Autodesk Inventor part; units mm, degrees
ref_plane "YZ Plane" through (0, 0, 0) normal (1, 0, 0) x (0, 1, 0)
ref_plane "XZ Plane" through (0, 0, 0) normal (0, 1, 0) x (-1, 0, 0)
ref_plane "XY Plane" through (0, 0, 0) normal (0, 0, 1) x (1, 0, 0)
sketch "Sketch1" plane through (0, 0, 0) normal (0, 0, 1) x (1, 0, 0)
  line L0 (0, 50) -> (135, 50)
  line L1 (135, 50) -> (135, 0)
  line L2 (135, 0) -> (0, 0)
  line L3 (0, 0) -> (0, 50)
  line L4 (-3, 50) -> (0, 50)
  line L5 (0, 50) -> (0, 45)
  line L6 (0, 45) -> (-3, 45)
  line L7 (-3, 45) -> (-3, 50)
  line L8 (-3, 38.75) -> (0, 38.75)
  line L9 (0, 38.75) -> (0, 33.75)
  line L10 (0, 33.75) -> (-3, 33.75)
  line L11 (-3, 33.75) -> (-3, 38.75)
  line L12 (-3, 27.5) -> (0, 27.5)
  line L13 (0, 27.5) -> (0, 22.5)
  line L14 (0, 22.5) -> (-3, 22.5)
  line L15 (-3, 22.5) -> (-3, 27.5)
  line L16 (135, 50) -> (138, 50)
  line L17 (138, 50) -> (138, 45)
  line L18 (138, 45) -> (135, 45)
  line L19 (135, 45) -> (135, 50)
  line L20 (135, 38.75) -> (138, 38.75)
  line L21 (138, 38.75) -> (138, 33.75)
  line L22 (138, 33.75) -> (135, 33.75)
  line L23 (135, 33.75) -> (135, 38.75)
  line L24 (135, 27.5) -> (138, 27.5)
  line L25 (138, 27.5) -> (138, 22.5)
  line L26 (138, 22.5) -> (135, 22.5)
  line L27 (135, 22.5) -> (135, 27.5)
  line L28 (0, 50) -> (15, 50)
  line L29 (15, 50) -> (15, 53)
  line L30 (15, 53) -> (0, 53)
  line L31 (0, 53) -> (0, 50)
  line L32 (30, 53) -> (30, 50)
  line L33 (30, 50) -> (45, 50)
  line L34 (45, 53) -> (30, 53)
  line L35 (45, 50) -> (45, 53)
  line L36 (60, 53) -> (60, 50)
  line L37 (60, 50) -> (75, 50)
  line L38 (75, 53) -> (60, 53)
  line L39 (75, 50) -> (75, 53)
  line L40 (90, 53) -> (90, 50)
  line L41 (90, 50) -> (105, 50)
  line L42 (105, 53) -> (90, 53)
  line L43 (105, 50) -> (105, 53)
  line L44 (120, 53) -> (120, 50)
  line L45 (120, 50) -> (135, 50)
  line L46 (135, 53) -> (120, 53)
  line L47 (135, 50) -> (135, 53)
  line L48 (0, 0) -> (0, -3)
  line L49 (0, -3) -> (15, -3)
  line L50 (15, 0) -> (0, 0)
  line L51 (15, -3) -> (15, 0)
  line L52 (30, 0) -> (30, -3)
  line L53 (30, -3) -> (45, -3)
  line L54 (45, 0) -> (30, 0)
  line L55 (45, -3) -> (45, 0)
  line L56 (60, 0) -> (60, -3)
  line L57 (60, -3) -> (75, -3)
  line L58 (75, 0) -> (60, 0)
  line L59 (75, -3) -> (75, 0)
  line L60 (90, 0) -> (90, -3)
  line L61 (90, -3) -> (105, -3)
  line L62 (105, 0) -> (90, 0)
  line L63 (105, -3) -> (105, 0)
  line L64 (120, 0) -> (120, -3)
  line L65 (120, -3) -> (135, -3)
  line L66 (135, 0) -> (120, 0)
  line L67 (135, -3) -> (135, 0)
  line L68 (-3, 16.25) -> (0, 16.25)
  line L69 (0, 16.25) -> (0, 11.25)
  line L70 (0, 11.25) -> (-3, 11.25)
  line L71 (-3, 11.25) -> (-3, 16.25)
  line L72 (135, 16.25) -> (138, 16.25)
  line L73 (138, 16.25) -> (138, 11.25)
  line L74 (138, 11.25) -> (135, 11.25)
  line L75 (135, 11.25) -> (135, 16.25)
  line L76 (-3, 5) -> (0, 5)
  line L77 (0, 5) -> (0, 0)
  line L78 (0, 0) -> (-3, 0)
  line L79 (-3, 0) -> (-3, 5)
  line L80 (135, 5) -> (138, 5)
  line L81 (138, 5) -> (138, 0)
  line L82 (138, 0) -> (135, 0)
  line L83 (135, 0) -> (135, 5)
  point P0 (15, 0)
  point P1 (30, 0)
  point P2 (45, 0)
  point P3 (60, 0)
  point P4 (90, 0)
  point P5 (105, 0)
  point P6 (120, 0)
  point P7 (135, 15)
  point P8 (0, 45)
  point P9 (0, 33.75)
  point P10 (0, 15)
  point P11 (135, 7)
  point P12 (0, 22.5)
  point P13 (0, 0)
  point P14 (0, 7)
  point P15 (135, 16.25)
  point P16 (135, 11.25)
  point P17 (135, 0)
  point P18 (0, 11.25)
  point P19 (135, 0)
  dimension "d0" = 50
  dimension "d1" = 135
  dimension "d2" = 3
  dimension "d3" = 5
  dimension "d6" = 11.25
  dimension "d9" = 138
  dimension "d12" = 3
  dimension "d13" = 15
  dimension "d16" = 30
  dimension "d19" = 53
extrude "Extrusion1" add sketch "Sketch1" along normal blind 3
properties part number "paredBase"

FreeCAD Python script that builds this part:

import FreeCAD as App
import Part
import Sketcher

doc = App.newDocument("Part")
body = doc.addObject("PartDesign::Body", "Body")

sketch1 = body.newObject("Sketcher::SketchObject", "Sketch")
sketch1.AttachmentSupport = (doc.getObject("XY_Plane"), [""])
sketch1.MapMode = "FlatFace"
sketch1.addGeometry([
    Part.LineSegment(App.Vector(0, 53, 0), App.Vector(0, 50, 0)),
    Part.LineSegment(App.Vector(0, 50, 0), App.Vector(-3, 50, 0)),
    Part.LineSegment(App.Vector(-3, 50, 0), App.Vector(-3, 45, 0)),
    Part.LineSegment(App.Vector(-3, 45, 0), App.Vector(0, 45, 0)),
    Part.LineSegment(App.Vector(0, 45, 0), App.Vector(0, 38.8, 0)),
    Part.LineSegment(App.Vector(0, 38.8, 0), App.Vector(-3, 38.8, 0)),
    Part.LineSegment(App.Vector(-3, 38.8, 0), App.Vector(-3, 33.8, 0)),
    Part.LineSegment(App.Vector(-3, 33.8, 0), App.Vector(0, 33.8, 0)),
    Part.LineSegment(App.Vector(0, 33.8, 0), App.Vector(0, 27.5, 0)),
    Part.LineSegment(App.Vector(0, 27.5, 0), App.Vector(-3, 27.5, 0)),
    Part.LineSegment(App.Vector(-3, 27.5, 0), App.Vector(-3, 22.5, 0)),
    Part.LineSegment(App.Vector(-3, 22.5, 0), App.Vector(0, 22.5, 0)),
    Part.LineSegment(App.Vector(0, 22.5, 0), App.Vector(0, 16.2, 0)),
    Part.LineSegment(App.Vector(0, 16.2, 0), App.Vector(-3, 16.2, 0)),
    Part.LineSegment(App.Vector(-3, 16.2, 0), App.Vector(-3, 11.2, 0)),
    Part.LineSegment(App.Vector(-3, 11.2, 0), App.Vector(0, 11.2, 0)),
    Part.LineSegment(App.Vector(0, 11.2, 0), App.Vector(0, 5, 0)),
    Part.LineSegment(App.Vector(0, 5, 0), App.Vector(-3, 5, 0)),
    Part.LineSegment(App.Vector(-3, 5, 0), App.Vector(-3, 0, 0)),
    Part.LineSegment(App.Vector(-3, 0, 0), App.Vector(0, 0, 0)),
    Part.LineSegment(App.Vector(0, 0, 0), App.Vector(0, -3, 0)),
    Part.LineSegment(App.Vector(0, -3, 0), App.Vector(15, -3, 0)),
    Part.LineSegment(App.Vector(15, -3, 0), App.Vector(15, 0, 0)),
    Part.LineSegment(App.Vector(15, 0, 0), App.Vector(30, 0, 0)),
    Part.LineSegment(App.Vector(30, 0, 0), App.Vector(30, -3, 0)),
    Part.LineSegment(App.Vector(30, -3, 0), App.Vector(45, -3, 0)),
    Part.LineSegment(App.Vector(45, -3, 0), App.Vector(45, 0, 0)),
    Part.LineSegment(App.Vector(45, 0, 0), App.Vector(60, 0, 0)),
    Part.LineSegment(App.Vector(60, 0, 0), App.Vector(60, -3, 0)),
    Part.LineSegment(App.Vector(60, -3, 0), App.Vector(75, -3, 0)),
    Part.LineSegment(App.Vector(75, -3, 0), App.Vector(75, 0, 0)),
    Part.LineSegment(App.Vector(75, 0, 0), App.Vector(90, 0, 0)),
    Part.LineSegment(App.Vector(90, 0, 0), App.Vector(90, -3, 0)),
    Part.LineSegment(App.Vector(90, -3, 0), App.Vector(105, -3, 0)),
    Part.LineSegment(App.Vector(105, -3, 0), App.Vector(105, 0, 0)),
    Part.LineSegment(App.Vector(105, 0, 0), App.Vector(120, 0, 0)),
    Part.LineSegment(App.Vector(120, 0, 0), App.Vector(120, -3, 0)),
    Part.LineSegment(App.Vector(120, -3, 0), App.Vector(135, -3, 0)),
    Part.LineSegment(App.Vector(135, -3, 0), App.Vector(135, 0, 0)),
    Part.LineSegment(App.Vector(135, 0, 0), App.Vector(138, 0, 0)),
    Part.LineSegment(App.Vector(138, 0, 0), App.Vector(138, 5, 0)),
    Part.LineSegment(App.Vector(138, 5, 0), App.Vector(135, 5, 0)),
    Part.LineSegment(App.Vector(135, 5, 0), App.Vector(135, 11.2, 0)),
    Part.LineSegment(App.Vector(135, 11.2, 0), App.Vector(138, 11.2, 0)),
    Part.LineSegment(App.Vector(138, 11.2, 0), App.Vector(138, 16.2, 0)),
    Part.LineSegment(App.Vector(138, 16.2, 0), App.Vector(135, 16.2, 0)),
    Part.LineSegment(App.Vector(135, 16.2, 0), App.Vector(135, 22.5, 0)),
    Part.LineSegment(App.Vector(135, 22.5, 0), App.Vector(138, 22.5, 0)),
    Part.LineSegment(App.Vector(138, 22.5, 0), App.Vector(138, 27.5, 0)),
    Part.LineSegment(App.Vector(138, 27.5, 0), App.Vector(135, 27.5, 0)),
    Part.LineSegment(App.Vector(135, 27.5, 0), App.Vector(135, 33.8, 0)),
    Part.LineSegment(App.Vector(135, 33.8, 0), App.Vector(138, 33.8, 0)),
    Part.LineSegment(App.Vector(138, 33.8, 0), App.Vector(138, 38.8, 0)),
    Part.LineSegment(App.Vector(138, 38.8, 0), App.Vector(135, 38.8, 0)),
    Part.LineSegment(App.Vector(135, 38.8, 0), App.Vector(135, 45, 0)),
    Part.LineSegment(App.Vector(135, 45, 0), App.Vector(138, 45, 0)),
    Part.LineSegment(App.Vector(138, 45, 0), App.Vector(138, 50, 0)),
    Part.LineSegment(App.Vector(138, 50, 0), App.Vector(135, 50, 0)),
    Part.LineSegment(App.Vector(135, 50, 0), App.Vector(135, 53, 0)),
    Part.LineSegment(App.Vector(135, 53, 0), App.Vector(120, 53, 0)),
    Part.LineSegment(App.Vector(120, 53, 0), App.Vector(120, 50, 0)),
    Part.LineSegment(App.Vector(120, 50, 0), App.Vector(105, 50, 0)),
    Part.LineSegment(App.Vector(105, 50, 0), App.Vector(105, 53, 0)),
    Part.LineSegment(App.Vector(105, 53, 0), App.Vector(90, 53, 0)),
    Part.LineSegment(App.Vector(90, 53, 0), App.Vector(90, 50, 0)),
    Part.LineSegment(App.Vector(90, 50, 0), App.Vector(75, 50, 0)),
    Part.LineSegment(App.Vector(75, 50, 0), App.Vector(75, 53, 0)),
    Part.LineSegment(App.Vector(75, 53, 0), App.Vector(60, 53, 0)),
    Part.LineSegment(App.Vector(60, 53, 0), App.Vector(60, 50, 0)),
    Part.LineSegment(App.Vector(60, 50, 0), App.Vector(45, 50, 0)),
    Part.LineSegment(App.Vector(45, 50, 0), App.Vector(45, 53, 0)),
    Part.LineSegment(App.Vector(45, 53, 0), App.Vector(30, 53, 0)),
    Part.LineSegment(App.Vector(30, 53, 0), App.Vector(30, 50, 0)),
    Part.LineSegment(App.Vector(30, 50, 0), App.Vector(15, 50, 0)),
    Part.LineSegment(App.Vector(15, 50, 0), App.Vector(15, 53, 0)),
    Part.LineSegment(App.Vector(15, 53, 0), App.Vector(0, 53, 0)),
], False)
sketch1.addConstraint([
    Sketcher.Constraint("Coincident", 0, 2, 1, 1),
    Sketcher.Constraint("Coincident", 1, 2, 2, 1),
    Sketcher.Constraint("Coincident", 2, 2, 3, 1),
    Sketcher.Constraint("Coincident", 3, 2, 4, 1),
    Sketcher.Constraint("Coincident", 4, 2, 5, 1),
    Sketcher.Constraint("Coincident", 5, 2, 6, 1),
    Sketcher.Constraint("Coincident", 6, 2, 7, 1),
    Sketcher.Constraint("Coincident", 7, 2, 8, 1),
    Sketcher.Constraint("Coincident", 8, 2, 9, 1),
    Sketcher.Constraint("Coincident", 9, 2, 10, 1),
    Sketcher.Constraint("Coincident", 10, 2, 11, 1),
    Sketcher.Constraint("Coincident", 11, 2, 12, 1),
    Sketcher.Constraint("Coincident", 12, 2, 13, 1),
    Sketcher.Constraint("Coincident", 13, 2, 14, 1),
    Sketcher.Constraint("Coincident", 14, 2, 15, 1),
    Sketcher.Constraint("Coincident", 15, 2, 16, 1),
    Sketcher.Constraint("Coincident", 16, 2, 17, 1),
    Sketcher.Constraint("Coincident", 17, 2, 18, 1),
    Sketcher.Constraint("Coincident", 18, 2, 19, 1),
    Sketcher.Constraint("Coincident", 19, 2, 20, 1),
    Sketcher.Constraint("Coincident", 20, 2, 21, 1),
    Sketcher.Constraint("Coincident", 21, 2, 22, 1),
    Sketcher.Constraint("Coincident", 22, 2, 23, 1),
    Sketcher.Constraint("Coincident", 23, 2, 24, 1),
    Sketcher.Constraint("Coincident", 24, 2, 25, 1),
    Sketcher.Constraint("Coincident", 25, 2, 26, 1),
    Sketcher.Constraint("Coincident", 26, 2, 27, 1),
    Sketcher.Constraint("Coincident", 27, 2, 28, 1),
    Sketcher.Constraint("Coincident", 28, 2, 29, 1),
    Sketcher.Constraint("Coincident", 29, 2, 30, 1),
    Sketcher.Constraint("Coincident", 30, 2, 31, 1),
    Sketcher.Constraint("Coincident", 31, 2, 32, 1),
    Sketcher.Constraint("Coincident", 32, 2, 33, 1),
    Sketcher.Constraint("Coincident", 33, 2, 34, 1),
    Sketcher.Constraint("Coincident", 34, 2, 35, 1),
    Sketcher.Constraint("Coincident", 35, 2, 36, 1),
    Sketcher.Constraint("Coincident", 36, 2, 37, 1),
    Sketcher.Constraint("Coincident", 37, 2, 38, 1),
    Sketcher.Constraint("Coincident", 38, 2, 39, 1),
    Sketcher.Constraint("Coincident", 39, 2, 40, 1),
    Sketcher.Constraint("Coincident", 40, 2, 41, 1),
    Sketcher.Constraint("Coincident", 41, 2, 42, 1),
    Sketcher.Constraint("Coincident", 42, 2, 43, 1),
    Sketcher.Constraint("Coincident", 43, 2, 44, 1),
    Sketcher.Constraint("Coincident", 44, 2, 45, 1),
    Sketcher.Constraint("Coincident", 45, 2, 46, 1),
    Sketcher.Constraint("Coincident", 46, 2, 47, 1),
    Sketcher.Constraint("Coincident", 47, 2, 48, 1),
    Sketcher.Constraint("Coincident", 48, 2, 49, 1),
    Sketcher.Constraint("Coincident", 49, 2, 50, 1),
    Sketcher.Constraint("Coincident", 50, 2, 51, 1),
    Sketcher.Constraint("Coincident", 51, 2, 52, 1),
    Sketcher.Constraint("Coincident", 52, 2, 53, 1),
    Sketcher.Constraint("Coincident", 53, 2, 54, 1),
    Sketcher.Constraint("Coincident", 54, 2, 55, 1),
    Sketcher.Constraint("Coincident", 55, 2, 56, 1),
    Sketcher.Constraint("Coincident", 56, 2, 57, 1),
    Sketcher.Constraint("Coincident", 57, 2, 58, 1),
    Sketcher.Constraint("Coincident", 58, 2, 59, 1),
    Sketcher.Constraint("Coincident", 59, 2, 60, 1),
    Sketcher.Constraint("Coincident", 60, 2, 61, 1),
    Sketcher.Constraint("Coincident", 61, 2, 62, 1),
    Sketcher.Constraint("Coincident", 62, 2, 63, 1),
    Sketcher.Constraint("Coincident", 63, 2, 64, 1),
    Sketcher.Constraint("Coincident", 64, 2, 65, 1),
    Sketcher.Constraint("Coincident", 65, 2, 66, 1),
    Sketcher.Constraint("Coincident", 66, 2, 67, 1),
    Sketcher.Constraint("Coincident", 67, 2, 68, 1),
    Sketcher.Constraint("Coincident", 68, 2, 69, 1),
    Sketcher.Constraint("Coincident", 69, 2, 70, 1),
    Sketcher.Constraint("Coincident", 70, 2, 71, 1),
    Sketcher.Constraint("Coincident", 71, 2, 72, 1),
    Sketcher.Constraint("Coincident", 72, 2, 73, 1),
    Sketcher.Constraint("Coincident", 73, 2, 74, 1),
    Sketcher.Constraint("Coincident", 74, 2, 75, 1),
    Sketcher.Constraint("Coincident", 75, 2, 0, 1),
    Sketcher.Constraint("Vertical", 0),
    Sketcher.Constraint("Horizontal", 1),
    Sketcher.Constraint("Vertical", 2),
    Sketcher.Constraint("Horizontal", 3),
    Sketcher.Constraint("Vertical", 4),
    Sketcher.Constraint("Horizontal", 5),
    Sketcher.Constraint("Vertical", 6),
    Sketcher.Constraint("Horizontal", 7),
    Sketcher.Constraint("Vertical", 8),
    Sketcher.Constraint("Horizontal", 9),
    Sketcher.Constraint("Vertical", 10),
    Sketcher.Constraint("Horizontal", 11),
    Sketcher.Constraint("Vertical", 12),
    Sketcher.Constraint("Horizontal", 13),
    Sketcher.Constraint("Vertical", 14),
    Sketcher.Constraint("Horizontal", 15),
    Sketcher.Constraint("Vertical", 16),
    Sketcher.Constraint("Horizontal", 17),
    Sketcher.Constraint("Vertical", 18),
    Sketcher.Constraint("Horizontal", 19),
    Sketcher.Constraint("Vertical", 20),
    Sketcher.Constraint("Horizontal", 21),
    Sketcher.Constraint("Vertical", 22),
    Sketcher.Constraint("Horizontal", 23),
    Sketcher.Constraint("Vertical", 24),
    Sketcher.Constraint("Horizontal", 25),
    Sketcher.Constraint("Vertical", 26),
    Sketcher.Constraint("Horizontal", 27),
    Sketcher.Constraint("Vertical", 28),
    Sketcher.Constraint("Horizontal", 29),
    Sketcher.Constraint("Vertical", 30),
    Sketcher.Constraint("Horizontal", 31),
    Sketcher.Constraint("Vertical", 32),
    Sketcher.Constraint("Horizontal", 33),
    Sketcher.Constraint("Vertical", 34),
    Sketcher.Constraint("Horizontal", 35),
    Sketcher.Constraint("Vertical", 36),
    Sketcher.Constraint("Horizontal", 37),
    Sketcher.Constraint("Vertical", 38),
    Sketcher.Constraint("Horizontal", 39),
    Sketcher.Constraint("Vertical", 40),
    Sketcher.Constraint("Horizontal", 41),
    Sketcher.Constraint("Vertical", 42),
    Sketcher.Constraint("Horizontal", 43),
    Sketcher.Constraint("Vertical", 44),
    Sketcher.Constraint("Horizontal", 45),
    Sketcher.Constraint("Vertical", 46),
    Sketcher.Constraint("Horizontal", 47),
    Sketcher.Constraint("Vertical", 48),
    Sketcher.Constraint("Horizontal", 49),
    Sketcher.Constraint("Vertical", 50),
    Sketcher.Constraint("Horizontal", 51),
    Sketcher.Constraint("Vertical", 52),
    Sketcher.Constraint("Horizontal", 53),
    Sketcher.Constraint("Vertical", 54),
    Sketcher.Constraint("Horizontal", 55),
    Sketcher.Constraint("Vertical", 56),
    Sketcher.Constraint("Horizontal", 57),
    Sketcher.Constraint("Vertical", 58),
    Sketcher.Constraint("Horizontal", 59),
    Sketcher.Constraint("Vertical", 60),
    Sketcher.Constraint("Horizontal", 61),
    Sketcher.Constraint("Vertical", 62),
    Sketcher.Constraint("Horizontal", 63),
    Sketcher.Constraint("Vertical", 64),
    Sketcher.Constraint("Horizontal", 65),
    Sketcher.Constraint("Vertical", 66),
    Sketcher.Constraint("Horizontal", 67),
    Sketcher.Constraint("Vertical", 68),
    Sketcher.Constraint("Horizontal", 69),
    Sketcher.Constraint("Vertical", 70),
    Sketcher.Constraint("Horizontal", 71),
    Sketcher.Constraint("Vertical", 72),
    Sketcher.Constraint("Horizontal", 73),
    Sketcher.Constraint("Vertical", 74),
    Sketcher.Constraint("Horizontal", 75),
    Sketcher.Constraint("Coincident", 19, 2, -1, 1),
    Sketcher.Constraint("PointOnObject", 0, 2, -2),
    Sketcher.Constraint("PointOnObject", 3, 2, -2),
    Sketcher.Constraint("PointOnObject", 7, 2, -2),
    Sketcher.Constraint("PointOnObject", 11, 2, -2),
    Sketcher.Constraint("PointOnObject", 15, 2, -2),
    Sketcher.Constraint("PointOnObject", 22, 2, -1),
    Sketcher.Constraint("PointOnObject", 26, 2, -1),
    Sketcher.Constraint("PointOnObject", 30, 2, -1),
    Sketcher.Constraint("PointOnObject", 34, 2, -1),
    Sketcher.Constraint("PointOnObject", 38, 2, -1),
    Sketcher.Constraint("Horizontal", 21, 2, 24, 2),
    Sketcher.Constraint("Horizontal", 25, 2, 28, 2),
    Sketcher.Constraint("Horizontal", 29, 2, 32, 2),
    Sketcher.Constraint("Horizontal", 33, 2, 36, 2),
    Sketcher.Constraint("Horizontal", 17, 2, 40, 2),
    Sketcher.Constraint("Horizontal", 15, 2, 42, 2),
    Sketcher.Constraint("Horizontal", 13, 2, 44, 2),
    Sketcher.Constraint("Horizontal", 11, 2, 46, 2),
    Sketcher.Constraint("Horizontal", 9, 2, 48, 2),
    Sketcher.Constraint("Horizontal", 7, 2, 50, 2),
    Sketcher.Constraint("Horizontal", 5, 2, 52, 2),
    Sketcher.Constraint("Horizontal", 3, 2, 54, 2),
    Sketcher.Constraint("Horizontal", 1, 2, 56, 2),
    Sketcher.Constraint("Horizontal", 57, 2, 60, 2),
    Sketcher.Constraint("Horizontal", 59, 2, 62, 2),
    Sketcher.Constraint("Horizontal", 61, 2, 64, 2),
    Sketcher.Constraint("Horizontal", 63, 2, 66, 2),
    Sketcher.Constraint("Horizontal", 65, 2, 68, 2),
    Sketcher.Constraint("Horizontal", 67, 2, 70, 2),
    Sketcher.Constraint("Horizontal", 69, 2, 72, 2),
    Sketcher.Constraint("Horizontal", 71, 2, 74, 2),
    Sketcher.Constraint("Vertical", 2, 2, 5, 2),
    Sketcher.Constraint("Vertical", 6, 2, 9, 2),
    Sketcher.Constraint("Vertical", 10, 2, 13, 2),
    Sketcher.Constraint("Vertical", 14, 2, 17, 2),
    Sketcher.Constraint("Vertical", 38, 2, 41, 2),
    Sketcher.Constraint("Vertical", 40, 2, 43, 2),
    Sketcher.Constraint("Vertical", 42, 2, 45, 2),
    Sketcher.Constraint("Vertical", 44, 2, 47, 2),
    Sketcher.Constraint("Vertical", 46, 2, 49, 2),
    Sketcher.Constraint("Vertical", 48, 2, 51, 2),
    Sketcher.Constraint("Vertical", 50, 2, 53, 2),
    Sketcher.Constraint("Vertical", 52, 2, 55, 2),
    Sketcher.Constraint("Vertical", 54, 2, 57, 2),
    Sketcher.Constraint("Vertical", 36, 2, 59, 2),
    Sketcher.Constraint("Vertical", 34, 2, 61, 2),
    Sketcher.Constraint("Vertical", 32, 2, 63, 2),
    Sketcher.Constraint("Vertical", 30, 2, 65, 2),
    Sketcher.Constraint("Vertical", 28, 2, 67, 2),
    Sketcher.Constraint("Vertical", 26, 2, 69, 2),
    Sketcher.Constraint("Vertical", 24, 2, 71, 2),
    Sketcher.Constraint("Vertical", 22, 2, 73, 2),
    Sketcher.Constraint("Equal", 21, 23),
    Sketcher.Constraint("Equal", 23, 25),
    Sketcher.Constraint("Equal", 25, 27),
    Sketcher.Constraint("Equal", 27, 29),
    Sketcher.Constraint("Equal", 29, 31),
    Sketcher.Constraint("Equal", 31, 33),
    Sketcher.Constraint("Equal", 33, 35),
    Sketcher.Constraint("Equal", 35, 37),
    Sketcher.Constraint("Equal", 19, 39),
    Sketcher.Constraint("Equal", 57, 0),
    Sketcher.Constraint("Equal", 2, 6),
    Sketcher.Constraint("Equal", 4, 8),
    Sketcher.Constraint("Equal", 6, 10),
    Sketcher.Constraint("Equal", 8, 12),
    Sketcher.Constraint("Equal", 10, 14),
    Sketcher.Constraint("Equal", 12, 16),
    Sketcher.Constraint("Equal", 14, 18),
    Sketcher.Constraint("Equal", 0, 20),
    Sketcher.Constraint("DistanceX", 1, 2, 1, 1, 3.0),
    Sketcher.Constraint("DistanceX", 21, 1, 21, 2, 15.0),
    Sketcher.Constraint("DistanceY", 2, 2, 2, 1, 5.0),
    Sketcher.Constraint("DistanceY", -1, 1, 0, 2, 50.0),
])
pad1 = body.newObject("PartDesign::Pad", "Pad")
pad1.Profile = sketch1
pad1.Length = 3

doc.recompute()
